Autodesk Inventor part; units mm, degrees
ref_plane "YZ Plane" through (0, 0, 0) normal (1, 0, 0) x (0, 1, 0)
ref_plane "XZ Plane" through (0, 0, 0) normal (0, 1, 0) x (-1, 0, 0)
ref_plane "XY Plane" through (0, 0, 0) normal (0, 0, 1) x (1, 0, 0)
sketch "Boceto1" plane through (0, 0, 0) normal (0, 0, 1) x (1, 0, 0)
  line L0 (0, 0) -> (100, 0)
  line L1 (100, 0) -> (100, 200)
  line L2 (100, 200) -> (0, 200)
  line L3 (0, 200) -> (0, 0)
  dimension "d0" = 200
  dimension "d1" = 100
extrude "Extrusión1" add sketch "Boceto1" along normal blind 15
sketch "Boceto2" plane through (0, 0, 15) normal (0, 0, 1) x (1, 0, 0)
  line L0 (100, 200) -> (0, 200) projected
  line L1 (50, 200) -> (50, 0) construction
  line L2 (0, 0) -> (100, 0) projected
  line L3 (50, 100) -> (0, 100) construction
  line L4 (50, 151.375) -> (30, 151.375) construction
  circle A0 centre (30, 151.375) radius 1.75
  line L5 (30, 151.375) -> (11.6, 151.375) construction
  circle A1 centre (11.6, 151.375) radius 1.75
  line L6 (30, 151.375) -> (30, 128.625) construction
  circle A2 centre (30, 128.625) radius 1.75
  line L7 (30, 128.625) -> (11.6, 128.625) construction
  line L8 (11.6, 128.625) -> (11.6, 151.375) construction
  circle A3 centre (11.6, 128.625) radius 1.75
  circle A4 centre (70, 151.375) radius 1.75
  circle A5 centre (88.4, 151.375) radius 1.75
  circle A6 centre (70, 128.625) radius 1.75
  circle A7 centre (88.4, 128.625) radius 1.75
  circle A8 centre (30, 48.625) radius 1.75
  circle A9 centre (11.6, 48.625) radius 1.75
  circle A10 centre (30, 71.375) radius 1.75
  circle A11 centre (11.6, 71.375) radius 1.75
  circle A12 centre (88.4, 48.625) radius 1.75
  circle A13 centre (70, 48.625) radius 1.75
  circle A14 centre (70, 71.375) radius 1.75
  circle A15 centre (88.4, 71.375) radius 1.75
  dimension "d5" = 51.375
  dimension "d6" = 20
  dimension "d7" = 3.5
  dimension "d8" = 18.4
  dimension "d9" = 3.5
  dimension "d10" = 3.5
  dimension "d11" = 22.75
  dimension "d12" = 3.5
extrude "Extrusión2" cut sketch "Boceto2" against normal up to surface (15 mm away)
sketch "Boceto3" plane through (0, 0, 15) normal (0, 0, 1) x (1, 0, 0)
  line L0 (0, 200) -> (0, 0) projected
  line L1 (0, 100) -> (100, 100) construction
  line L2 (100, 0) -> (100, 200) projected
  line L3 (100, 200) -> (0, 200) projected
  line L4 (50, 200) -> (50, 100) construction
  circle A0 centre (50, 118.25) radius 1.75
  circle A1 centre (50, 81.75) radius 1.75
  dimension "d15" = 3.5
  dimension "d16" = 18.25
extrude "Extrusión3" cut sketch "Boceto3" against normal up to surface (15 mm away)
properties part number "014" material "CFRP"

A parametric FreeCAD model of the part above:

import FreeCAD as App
import Part
import Sketcher
from FreeCAD import Vector

doc = App.newDocument("Part")
body = doc.addObject("PartDesign::Body", "Body")

sketch1 = body.newObject("Sketcher::SketchObject", "Sketch")
sketch1.AttachmentSupport = (doc.getObject("XY_Plane"), [""])
sketch1.MapMode = "FlatFace"
sketch1.addGeometry(Part.LineSegment(Vector(0, 200, 0), Vector(0, 0, 0)), False)
sketch1.addGeometry(Part.LineSegment(Vector(0, 0, 0), Vector(100, 0, 0)), False)
sketch1.addGeometry(Part.LineSegment(Vector(100, 0, 0), Vector(100, 200, 0)), False)
sketch1.addGeometry(Part.LineSegment(Vector(100, 200, 0), Vector(0, 200, 0)), False)
sketch1.addConstraint(Sketcher.Constraint("Coincident", 0, 2, 1, 1))
sketch1.addConstraint(Sketcher.Constraint("Coincident", 1, 2, 2, 1))
sketch1.addConstraint(Sketcher.Constraint("Coincident", 2, 2, 3, 1))
sketch1.addConstraint(Sketcher.Constraint("Coincident", 3, 2, 0, 1))
sketch1.addConstraint(Sketcher.Constraint("Vertical", 0))
sketch1.addConstraint(Sketcher.Constraint("Horizontal", 1))
sketch1.addConstraint(Sketcher.Constraint("Vertical", 2))
sketch1.addConstraint(Sketcher.Constraint("Horizontal", 3))
sketch1.addConstraint(Sketcher.Constraint("Coincident", 0, 2, -1, 1))
sketch1.addConstraint(Sketcher.Constraint("DistanceX", 1, 1, 1, 2, 100.0))
sketch1.addConstraint(Sketcher.Constraint("DistanceY", 0, 2, 0, 1, 200.0))
pad1 = body.newObject("PartDesign::Pad", "Pad")
pad1.Profile = sketch1
pad1.Length = 15

sketch2 = body.newObject("Sketcher::SketchObject", "Sketch001")
sketch2.AttachmentSupport = (doc.getObject("XY_Plane"), [""])
sketch2.MapMode = "FlatFace"
sketch2.AttachmentOffset = App.Placement(Vector(0, 0, 15), App.Rotation())
sketch2.addGeometry(Part.Circle(Vector(30, 151.375, 0), Vector(0, 0, 1), 1.75), False)
sketch2.addGeometry(Part.Circle(Vector(11.6, 151.375, 0), Vector(0, 0, 1), 1.75), False)
sketch2.addGeometry(Part.Circle(Vector(30, 128.625, 0), Vector(0, 0, 1), 1.75), False)
sketch2.addGeometry(Part.Circle(Vector(11.6, 128.625, 0), Vector(0, 0, 1), 1.75), False)
sketch2.addGeometry(Part.Circle(Vector(70, 151.375, 0), Vector(0, 0, 1), 1.75), False)
sketch2.addGeometry(Part.Circle(Vector(88.4, 151.375, 0), Vector(0, 0, 1), 1.75), False)
sketch2.addGeometry(Part.Circle(Vector(70, 128.625, 0), Vector(0, 0, 1), 1.75), False)
sketch2.addGeometry(Part.Circle(Vector(88.4, 128.625, 0), Vector(0, 0, 1), 1.75), False)
sketch2.addGeometry(Part.Circle(Vector(30, 48.625, 0), Vector(0, 0, 1), 1.75), False)
sketch2.addGeometry(Part.Circle(Vector(11.6, 48.625, 0), Vector(0, 0, 1), 1.75), False)
sketch2.addGeometry(Part.Circle(Vector(30, 71.375, 0), Vector(0, 0, 1), 1.75), False)
sketch2.addGeometry(Part.Circle(Vector(11.6, 71.375, 0), Vector(0, 0, 1), 1.75), False)
sketch2.addGeometry(Part.Circle(Vector(88.4, 48.625, 0), Vector(0, 0, 1), 1.75), False)
sketch2.addGeometry(Part.Circle(Vector(70, 48.625, 0), Vector(0, 0, 1), 1.75), False)
sketch2.addGeometry(Part.Circle(Vector(70, 71.375, 0), Vector(0, 0, 1), 1.75), False)
sketch2.addGeometry(Part.Circle(Vector(88.4, 71.375, 0), Vector(0, 0, 1), 1.75), False)
sketch2.addConstraint(Sketcher.Constraint("Equal", 0, 1))
sketch2.addConstraint(Sketcher.Constraint("Equal", 1, 2))
sketch2.addConstraint(Sketcher.Constraint("Equal", 2, 3))
sketch2.addConstraint(Sketcher.Constraint("Equal", 3, 4))
sketch2.addConstraint(Sketcher.Constraint("Equal", 4, 5))
sketch2.addConstraint(Sketcher.Constraint("Equal", 5, 6))
sketch2.addConstraint(Sketcher.Constraint("Equal", 6, 7))
sketch2.addConstraint(Sketcher.Constraint("Equal", 7, 8))
sketch2.addConstraint(Sketcher.Constraint("Equal", 8, 9))
sketch2.addConstraint(Sketcher.Constraint("Equal", 9, 10))
sketch2.addConstraint(Sketcher.Constraint("Equal", 10, 11))
sketch2.addConstraint(Sketcher.Constraint("Equal", 11, 12))
sketch2.addConstraint(Sketcher.Constraint("Equal", 12, 13))
sketch2.addConstraint(Sketcher.Constraint("Equal", 13, 14))
sketch2.addConstraint(Sketcher.Constraint("Equal", 14, 15))
sketch2.addConstraint(Sketcher.Constraint("Horizontal", 0, 3, 1, 3))
sketch2.addConstraint(Sketcher.Constraint("Horizontal", 2, 3, 3, 3))
sketch2.addConstraint(Sketcher.Constraint("Horizontal", 1, 3, 4, 3))
sketch2.addConstraint(Sketcher.Constraint("Horizontal", 4, 3, 5, 3))
sketch2.addConstraint(Sketcher.Constraint("Horizontal", 3, 3, 6, 3))
sketch2.addConstraint(Sketcher.Constraint("Horizontal", 6, 3, 7, 3))
sketch2.addConstraint(Sketcher.Constraint("Horizontal", 8, 3, 9, 3))
sketch2.addConstraint(Sketcher.Constraint("Horizontal", 10, 3, 11, 3))
sketch2.addConstraint(Sketcher.Constraint("Horizontal", 9, 3, 12, 3))
sketch2.addConstraint(Sketcher.Constraint("Horizontal", 12, 3, 13, 3))
sketch2.addConstraint(Sketcher.Constraint("Horizontal", 11, 3, 14, 3))
sketch2.addConstraint(Sketcher.Constraint("Horizontal", 14, 3, 15, 3))
sketch2.addConstraint(Sketcher.Constraint("Vertical", 0, 3, 2, 3))
sketch2.addConstraint(Sketcher.Constraint("Vertical", 1, 3, 3, 3))
sketch2.addConstraint(Sketcher.Constraint("Vertical", 4, 3, 6, 3))
sketch2.addConstraint(Sketcher.Constraint("Vertical", 5, 3, 7, 3))
sketch2.addConstraint(Sketcher.Constraint("Vertical", 2, 3, 8, 3))
sketch2.addConstraint(Sketcher.Constraint("Vertical", 3, 3, 9, 3))
sketch2.addConstraint(Sketcher.Constraint("Vertical", 8, 3, 10, 3))
sketch2.addConstraint(Sketcher.Constraint("Vertical", 9, 3, 11, 3))
sketch2.addConstraint(Sketcher.Constraint("Vertical", 7, 3, 12, 3))
sketch2.addConstraint(Sketcher.Constraint("Vertical", 6, 3, 13, 3))
sketch2.addConstraint(Sketcher.Constraint("Vertical", 13, 3, 14, 3))
sketch2.addConstraint(Sketcher.Constraint("Vertical", 12, 3, 15, 3))
sketch2.addConstraint(Sketcher.Constraint("Diameter", 0, 3.5))
sketch2.addConstraint(Sketcher.Constraint("DistanceX", 1, 3, 0, 3, 18.4))
sketch2.addConstraint(Sketcher.Constraint("DistanceX", 4, 3, 5, 3, 18.4))
sketch2.addConstraint(Sketcher.Constraint("DistanceY", 2, 3, 0, 3, 22.75))
sketch2.addConstraint(Sketcher.Constraint("DistanceY", 8, 3, 10, 3, 22.75))
sketch2.addConstraint(Sketcher.Constraint("DistanceX", -1, 1, 0, 3, 30.0))
sketch2.addConstraint(Sketcher.Constraint("DistanceX", -1, 1, 4, 3, 70.0))
sketch2.addConstraint(Sketcher.Constraint("DistanceY", 8, 3, 2, 3, 80.0))
sketch2.addConstraint(Sketcher.Constraint("DistanceY", -1, 1, 0, 3, 151.375))
pocket1 = body.newObject("PartDesign::Pocket", "Pocket")
pocket1.Profile = sketch2
pocket1.Length = 15

sketch3 = body.newObject("Sketcher::SketchObject", "Sketch002")
sketch3.AttachmentSupport = (doc.getObject("XY_Plane"), [""])
sketch3.MapMode = "FlatFace"
sketch3.AttachmentOffset = App.Placement(Vector(0, 0, 15), App.Rotation())
sketch3.addGeometry(Part.Circle(Vector(50, 118.25, 0), Vector(0, 0, 1), 1.75), False)
sketch3.addGeometry(Part.Circle(Vector(50, 81.75, 0), Vector(0, 0, 1), 1.75), False)
sketch3.addConstraint(Sketcher.Constraint("Equal", 0, 1))
sketch3.addConstraint(Sketcher.Constraint("Vertical", 0, 3, 1, 3))
sketch3.addConstraint(Sketcher.Constraint("Diameter", 0, 3.5))
sketch3.addConstraint(Sketcher.Constraint("DistanceX", -1, 1, 0, 3, 50.0))
sketch3.addConstraint(Sketcher.Constraint("DistanceY", 1, 3, 0, 3, 36.5))
sketch3.addConstraint(Sketcher.Constraint("DistanceY", -1, 1, 0, 3, 118.25))
pocket2 = body.newObject("PartDesign::Pocket", "Pocket001")
pocket2.Profile = sketch3
pocket2.Length = 15

doc.recompute()
